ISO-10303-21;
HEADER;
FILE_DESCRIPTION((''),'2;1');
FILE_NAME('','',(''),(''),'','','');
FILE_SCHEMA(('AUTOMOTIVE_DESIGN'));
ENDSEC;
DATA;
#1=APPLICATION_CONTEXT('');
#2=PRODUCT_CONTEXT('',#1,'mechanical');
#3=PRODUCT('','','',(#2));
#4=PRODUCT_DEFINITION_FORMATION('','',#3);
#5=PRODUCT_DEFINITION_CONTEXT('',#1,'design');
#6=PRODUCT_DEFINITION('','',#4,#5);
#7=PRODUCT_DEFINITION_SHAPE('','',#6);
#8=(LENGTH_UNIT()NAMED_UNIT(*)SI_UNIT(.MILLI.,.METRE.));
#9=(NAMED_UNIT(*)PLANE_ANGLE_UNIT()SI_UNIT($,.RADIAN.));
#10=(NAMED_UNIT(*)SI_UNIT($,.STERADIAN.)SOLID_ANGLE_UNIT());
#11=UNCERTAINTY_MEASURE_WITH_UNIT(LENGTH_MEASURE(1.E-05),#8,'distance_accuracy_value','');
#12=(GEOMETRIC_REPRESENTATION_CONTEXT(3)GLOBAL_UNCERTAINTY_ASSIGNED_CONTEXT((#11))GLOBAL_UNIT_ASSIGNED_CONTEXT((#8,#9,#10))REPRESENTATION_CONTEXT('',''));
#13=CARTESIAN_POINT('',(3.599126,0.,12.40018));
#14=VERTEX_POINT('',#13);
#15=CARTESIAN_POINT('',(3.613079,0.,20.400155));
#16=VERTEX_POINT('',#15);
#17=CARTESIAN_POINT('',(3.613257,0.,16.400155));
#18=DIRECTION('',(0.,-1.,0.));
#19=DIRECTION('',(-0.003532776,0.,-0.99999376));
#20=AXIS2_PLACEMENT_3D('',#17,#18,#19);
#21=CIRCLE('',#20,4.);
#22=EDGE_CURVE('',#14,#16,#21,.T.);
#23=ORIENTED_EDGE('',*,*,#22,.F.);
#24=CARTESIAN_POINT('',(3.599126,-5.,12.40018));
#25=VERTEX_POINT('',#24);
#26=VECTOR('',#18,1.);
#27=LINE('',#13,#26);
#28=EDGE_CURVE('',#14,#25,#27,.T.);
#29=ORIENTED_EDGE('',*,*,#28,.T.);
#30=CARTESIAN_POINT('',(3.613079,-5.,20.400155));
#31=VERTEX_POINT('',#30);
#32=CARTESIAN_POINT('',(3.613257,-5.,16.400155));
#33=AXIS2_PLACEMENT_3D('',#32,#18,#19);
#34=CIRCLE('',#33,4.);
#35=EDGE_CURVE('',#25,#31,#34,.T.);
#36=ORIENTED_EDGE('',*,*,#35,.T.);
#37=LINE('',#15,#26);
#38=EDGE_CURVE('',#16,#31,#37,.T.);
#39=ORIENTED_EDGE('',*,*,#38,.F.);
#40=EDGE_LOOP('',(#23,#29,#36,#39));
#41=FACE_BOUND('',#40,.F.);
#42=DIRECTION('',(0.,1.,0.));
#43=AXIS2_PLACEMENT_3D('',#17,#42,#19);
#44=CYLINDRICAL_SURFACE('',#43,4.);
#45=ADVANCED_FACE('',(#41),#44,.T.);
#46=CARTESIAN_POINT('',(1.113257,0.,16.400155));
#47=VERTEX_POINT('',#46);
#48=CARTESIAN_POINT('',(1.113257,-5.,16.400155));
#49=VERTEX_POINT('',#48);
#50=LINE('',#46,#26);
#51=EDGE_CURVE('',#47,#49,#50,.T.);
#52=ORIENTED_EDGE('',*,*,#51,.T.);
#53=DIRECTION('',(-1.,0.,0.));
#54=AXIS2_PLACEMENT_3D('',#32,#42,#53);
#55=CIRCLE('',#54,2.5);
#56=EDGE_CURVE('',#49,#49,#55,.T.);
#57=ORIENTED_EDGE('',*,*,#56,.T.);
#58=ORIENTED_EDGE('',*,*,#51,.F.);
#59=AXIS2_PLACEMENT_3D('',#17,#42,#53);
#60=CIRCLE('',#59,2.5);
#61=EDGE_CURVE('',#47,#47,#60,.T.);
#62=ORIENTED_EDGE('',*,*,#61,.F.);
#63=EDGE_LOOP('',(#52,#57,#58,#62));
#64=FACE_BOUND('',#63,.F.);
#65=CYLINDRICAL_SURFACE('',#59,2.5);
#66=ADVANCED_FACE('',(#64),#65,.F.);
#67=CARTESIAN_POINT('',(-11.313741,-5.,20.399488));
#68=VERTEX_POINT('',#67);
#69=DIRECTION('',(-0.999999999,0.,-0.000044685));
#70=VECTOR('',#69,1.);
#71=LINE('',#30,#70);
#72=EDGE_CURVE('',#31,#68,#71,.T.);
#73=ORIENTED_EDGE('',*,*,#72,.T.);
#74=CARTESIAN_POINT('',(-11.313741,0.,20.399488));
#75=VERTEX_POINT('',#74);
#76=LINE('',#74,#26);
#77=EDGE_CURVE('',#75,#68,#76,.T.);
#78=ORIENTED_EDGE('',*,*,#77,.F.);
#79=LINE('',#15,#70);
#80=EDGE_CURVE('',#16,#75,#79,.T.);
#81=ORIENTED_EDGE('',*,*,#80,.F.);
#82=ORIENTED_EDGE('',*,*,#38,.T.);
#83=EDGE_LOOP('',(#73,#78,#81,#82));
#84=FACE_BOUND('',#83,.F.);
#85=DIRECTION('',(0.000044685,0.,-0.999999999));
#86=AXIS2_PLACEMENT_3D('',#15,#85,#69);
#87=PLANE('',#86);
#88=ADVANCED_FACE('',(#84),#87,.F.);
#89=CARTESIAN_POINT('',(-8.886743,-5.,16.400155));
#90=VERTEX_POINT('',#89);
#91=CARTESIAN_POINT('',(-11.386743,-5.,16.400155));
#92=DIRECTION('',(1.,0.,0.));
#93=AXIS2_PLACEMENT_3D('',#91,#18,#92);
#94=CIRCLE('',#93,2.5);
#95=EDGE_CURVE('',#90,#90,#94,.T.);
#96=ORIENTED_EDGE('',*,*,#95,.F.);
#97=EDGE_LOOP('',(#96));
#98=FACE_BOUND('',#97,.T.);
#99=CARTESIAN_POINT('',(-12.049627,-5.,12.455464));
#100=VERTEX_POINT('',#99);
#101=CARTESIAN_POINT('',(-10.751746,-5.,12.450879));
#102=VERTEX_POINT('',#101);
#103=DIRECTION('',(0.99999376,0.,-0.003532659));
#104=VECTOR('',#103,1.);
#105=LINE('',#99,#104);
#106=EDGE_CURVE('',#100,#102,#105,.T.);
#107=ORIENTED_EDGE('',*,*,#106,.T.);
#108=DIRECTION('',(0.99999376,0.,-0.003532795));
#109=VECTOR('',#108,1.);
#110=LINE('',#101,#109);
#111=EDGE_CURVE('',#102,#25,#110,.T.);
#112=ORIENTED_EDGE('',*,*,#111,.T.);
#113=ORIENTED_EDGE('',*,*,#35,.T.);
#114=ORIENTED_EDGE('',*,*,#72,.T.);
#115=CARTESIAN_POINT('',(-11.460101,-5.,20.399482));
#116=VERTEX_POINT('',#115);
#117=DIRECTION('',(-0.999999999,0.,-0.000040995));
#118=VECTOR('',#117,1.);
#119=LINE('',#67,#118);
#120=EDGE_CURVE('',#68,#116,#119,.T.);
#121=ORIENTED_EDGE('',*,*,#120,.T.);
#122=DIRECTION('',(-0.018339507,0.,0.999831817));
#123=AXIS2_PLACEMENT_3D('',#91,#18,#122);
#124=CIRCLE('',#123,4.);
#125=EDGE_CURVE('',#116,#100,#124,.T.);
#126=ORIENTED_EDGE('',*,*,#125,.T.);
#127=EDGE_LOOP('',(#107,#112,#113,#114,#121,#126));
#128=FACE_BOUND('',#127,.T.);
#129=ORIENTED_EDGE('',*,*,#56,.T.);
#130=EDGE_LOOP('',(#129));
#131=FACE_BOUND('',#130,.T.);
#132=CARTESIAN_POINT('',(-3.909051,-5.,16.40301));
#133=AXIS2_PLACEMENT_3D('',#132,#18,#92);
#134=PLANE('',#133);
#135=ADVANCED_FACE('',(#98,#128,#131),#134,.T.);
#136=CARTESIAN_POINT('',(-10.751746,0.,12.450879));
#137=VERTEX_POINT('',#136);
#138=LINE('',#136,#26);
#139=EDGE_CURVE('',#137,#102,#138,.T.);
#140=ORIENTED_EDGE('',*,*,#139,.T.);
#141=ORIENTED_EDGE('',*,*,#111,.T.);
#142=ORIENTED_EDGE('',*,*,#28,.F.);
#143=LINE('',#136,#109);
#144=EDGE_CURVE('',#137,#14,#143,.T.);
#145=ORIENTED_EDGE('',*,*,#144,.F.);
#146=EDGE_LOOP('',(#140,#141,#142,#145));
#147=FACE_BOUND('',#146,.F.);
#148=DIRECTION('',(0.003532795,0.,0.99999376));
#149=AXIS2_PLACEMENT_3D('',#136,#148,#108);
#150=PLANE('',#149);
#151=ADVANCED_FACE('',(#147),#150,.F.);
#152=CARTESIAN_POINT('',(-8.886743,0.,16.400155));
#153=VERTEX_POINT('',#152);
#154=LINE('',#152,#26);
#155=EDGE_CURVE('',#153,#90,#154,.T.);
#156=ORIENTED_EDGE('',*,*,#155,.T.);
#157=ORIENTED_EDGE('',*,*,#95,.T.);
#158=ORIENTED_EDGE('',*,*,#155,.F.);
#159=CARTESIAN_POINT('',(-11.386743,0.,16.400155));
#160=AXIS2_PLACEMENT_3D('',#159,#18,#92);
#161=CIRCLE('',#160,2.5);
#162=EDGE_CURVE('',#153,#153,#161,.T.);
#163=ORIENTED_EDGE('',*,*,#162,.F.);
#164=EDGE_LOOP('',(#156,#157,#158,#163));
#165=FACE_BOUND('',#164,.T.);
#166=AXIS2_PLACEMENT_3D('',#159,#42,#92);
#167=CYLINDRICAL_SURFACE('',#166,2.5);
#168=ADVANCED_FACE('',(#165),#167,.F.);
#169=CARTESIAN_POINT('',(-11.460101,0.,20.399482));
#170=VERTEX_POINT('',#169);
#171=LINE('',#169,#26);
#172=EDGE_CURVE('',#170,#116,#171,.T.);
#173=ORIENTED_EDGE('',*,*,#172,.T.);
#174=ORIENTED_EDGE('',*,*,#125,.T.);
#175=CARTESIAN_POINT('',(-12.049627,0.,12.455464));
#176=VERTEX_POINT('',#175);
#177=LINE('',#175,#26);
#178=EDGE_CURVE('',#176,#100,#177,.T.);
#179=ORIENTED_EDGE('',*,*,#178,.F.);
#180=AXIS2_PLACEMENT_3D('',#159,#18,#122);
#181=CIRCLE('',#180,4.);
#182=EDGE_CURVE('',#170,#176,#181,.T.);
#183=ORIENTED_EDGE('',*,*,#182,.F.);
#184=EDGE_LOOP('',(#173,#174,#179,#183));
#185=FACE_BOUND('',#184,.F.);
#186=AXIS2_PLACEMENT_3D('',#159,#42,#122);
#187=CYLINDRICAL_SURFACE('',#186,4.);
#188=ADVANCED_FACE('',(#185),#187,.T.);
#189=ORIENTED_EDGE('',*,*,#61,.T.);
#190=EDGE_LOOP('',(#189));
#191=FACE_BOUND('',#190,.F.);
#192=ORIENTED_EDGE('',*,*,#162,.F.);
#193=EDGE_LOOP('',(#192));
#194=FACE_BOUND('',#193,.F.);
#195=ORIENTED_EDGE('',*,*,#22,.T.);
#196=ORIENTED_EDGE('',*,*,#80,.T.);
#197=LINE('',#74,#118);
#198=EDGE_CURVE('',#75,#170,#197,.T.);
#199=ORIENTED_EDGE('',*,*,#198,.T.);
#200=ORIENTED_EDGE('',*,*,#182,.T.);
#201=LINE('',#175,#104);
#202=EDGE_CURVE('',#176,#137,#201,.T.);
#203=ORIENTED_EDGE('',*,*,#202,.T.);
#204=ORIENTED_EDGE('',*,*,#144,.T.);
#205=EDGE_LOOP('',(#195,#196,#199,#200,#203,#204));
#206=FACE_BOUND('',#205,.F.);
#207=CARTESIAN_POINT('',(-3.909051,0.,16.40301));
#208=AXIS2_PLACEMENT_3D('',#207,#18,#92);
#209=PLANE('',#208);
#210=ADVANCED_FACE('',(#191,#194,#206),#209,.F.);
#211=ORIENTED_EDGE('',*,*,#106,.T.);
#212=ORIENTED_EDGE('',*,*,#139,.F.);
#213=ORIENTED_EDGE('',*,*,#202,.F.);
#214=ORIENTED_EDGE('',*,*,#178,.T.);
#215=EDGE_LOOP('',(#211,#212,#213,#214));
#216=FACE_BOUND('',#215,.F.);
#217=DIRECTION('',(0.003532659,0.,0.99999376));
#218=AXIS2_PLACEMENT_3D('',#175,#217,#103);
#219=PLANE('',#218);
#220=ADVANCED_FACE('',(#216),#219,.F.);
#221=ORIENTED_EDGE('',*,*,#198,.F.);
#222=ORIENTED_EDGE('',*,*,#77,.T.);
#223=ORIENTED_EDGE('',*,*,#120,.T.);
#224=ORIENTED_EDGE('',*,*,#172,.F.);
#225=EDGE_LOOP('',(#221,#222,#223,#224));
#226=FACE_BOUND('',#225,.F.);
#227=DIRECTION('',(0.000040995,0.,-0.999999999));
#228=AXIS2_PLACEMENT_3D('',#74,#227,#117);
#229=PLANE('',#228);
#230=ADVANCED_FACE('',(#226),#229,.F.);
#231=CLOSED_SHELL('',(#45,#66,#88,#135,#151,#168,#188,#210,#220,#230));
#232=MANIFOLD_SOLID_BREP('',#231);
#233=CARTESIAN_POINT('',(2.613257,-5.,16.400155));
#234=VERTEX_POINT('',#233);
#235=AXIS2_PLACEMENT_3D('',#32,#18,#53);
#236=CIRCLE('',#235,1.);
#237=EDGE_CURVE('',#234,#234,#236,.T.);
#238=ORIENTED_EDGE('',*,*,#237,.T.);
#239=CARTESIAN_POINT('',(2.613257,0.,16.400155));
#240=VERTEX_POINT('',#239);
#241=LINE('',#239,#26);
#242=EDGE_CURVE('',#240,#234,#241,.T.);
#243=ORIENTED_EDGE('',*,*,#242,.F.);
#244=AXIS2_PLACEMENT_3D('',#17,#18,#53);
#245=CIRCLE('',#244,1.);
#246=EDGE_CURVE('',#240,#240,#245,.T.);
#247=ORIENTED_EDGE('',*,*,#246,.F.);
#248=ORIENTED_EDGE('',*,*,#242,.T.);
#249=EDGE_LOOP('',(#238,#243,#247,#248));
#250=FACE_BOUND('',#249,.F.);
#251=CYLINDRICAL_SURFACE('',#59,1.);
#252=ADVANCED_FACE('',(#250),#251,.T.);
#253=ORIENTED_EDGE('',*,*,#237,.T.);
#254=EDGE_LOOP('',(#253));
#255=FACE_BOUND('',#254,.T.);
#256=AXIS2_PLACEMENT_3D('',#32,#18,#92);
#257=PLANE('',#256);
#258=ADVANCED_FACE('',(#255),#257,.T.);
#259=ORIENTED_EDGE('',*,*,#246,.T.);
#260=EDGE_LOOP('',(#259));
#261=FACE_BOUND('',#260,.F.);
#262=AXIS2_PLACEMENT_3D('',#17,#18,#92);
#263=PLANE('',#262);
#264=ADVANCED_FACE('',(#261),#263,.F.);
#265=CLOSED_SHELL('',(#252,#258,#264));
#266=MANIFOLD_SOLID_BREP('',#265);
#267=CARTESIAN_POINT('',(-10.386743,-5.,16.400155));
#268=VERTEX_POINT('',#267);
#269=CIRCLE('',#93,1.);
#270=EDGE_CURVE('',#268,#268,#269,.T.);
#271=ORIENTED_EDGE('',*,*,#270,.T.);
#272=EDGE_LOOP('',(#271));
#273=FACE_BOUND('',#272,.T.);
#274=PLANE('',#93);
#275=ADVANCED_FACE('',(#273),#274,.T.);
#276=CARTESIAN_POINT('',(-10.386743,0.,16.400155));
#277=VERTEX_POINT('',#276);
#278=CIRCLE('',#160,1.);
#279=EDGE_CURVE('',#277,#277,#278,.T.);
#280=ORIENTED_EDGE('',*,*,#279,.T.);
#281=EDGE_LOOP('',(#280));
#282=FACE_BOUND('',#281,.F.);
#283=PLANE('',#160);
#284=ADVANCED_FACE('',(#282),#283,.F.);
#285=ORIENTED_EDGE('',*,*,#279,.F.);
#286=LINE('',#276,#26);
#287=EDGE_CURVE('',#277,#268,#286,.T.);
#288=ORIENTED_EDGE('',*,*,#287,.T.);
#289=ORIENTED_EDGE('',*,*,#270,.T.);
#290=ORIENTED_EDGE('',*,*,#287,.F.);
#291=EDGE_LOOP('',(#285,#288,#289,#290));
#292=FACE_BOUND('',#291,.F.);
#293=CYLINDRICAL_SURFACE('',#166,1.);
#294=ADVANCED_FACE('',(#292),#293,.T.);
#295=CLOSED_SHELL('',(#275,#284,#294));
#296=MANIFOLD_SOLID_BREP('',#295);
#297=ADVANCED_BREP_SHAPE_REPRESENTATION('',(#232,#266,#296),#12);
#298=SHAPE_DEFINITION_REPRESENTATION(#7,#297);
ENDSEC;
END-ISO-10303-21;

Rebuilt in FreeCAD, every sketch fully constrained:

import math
import FreeCAD as App
import Part
import Sketcher
Q = App.Units.Quantity

doc = App.newDocument("Part")
params = doc.addObject("Spreadsheet::Sheet", "Params")
for row, (alias, value) in enumerate([
    ("sketch1_diameter", "5 mm"),
    ("sketch1_radius", "4 mm"),
    ("pad1_length", "5 mm"),
    ("sketch2_diameter", "2 mm"),
    ("pad2_length", "5 mm"),
], start=1):
    params.set(f"A{row}", alias)
    params.set(f"B{row}", "=" + value)
    params.setAlias(f"B{row}", alias)

body = doc.addObject("PartDesign::Body", "Body")

sketch1 = doc.addObject("Sketcher::SketchObject", "Sketch")
body.addObject(sketch1)
sketch1.AttachmentSupport = (doc.XZ_Plane, [""])
sketch1.MapMode = "FlatFace"
sketch1.addGeometry(Part.LineSegment(App.Vector(3.61, 20.4, 0), App.Vector(-11.31, 20.4, 0)), False)
sketch1.addGeometry(Part.LineSegment(App.Vector(-11.31, 20.4, 0), App.Vector(-11.46, 20.4, 0)), False)
sketch1.addGeometry(Part.ArcOfCircle(Part.Circle(App.Vector(-11.39, 16.4, 0), App.Vector(0, 0, 1), 4), math.radians(91), math.radians(260)), False)
sketch1.addGeometry(Part.LineSegment(App.Vector(-12.05, 12.46, 0), App.Vector(-10.75, 12.45, 0)), False)
sketch1.addGeometry(Part.LineSegment(App.Vector(-10.75, 12.45, 0), App.Vector(3.6, 12.4, 0)), False)
sketch1.addGeometry(Part.ArcOfCircle(Part.Circle(App.Vector(3.61, 16.4, 0), App.Vector(0, 0, 1), 4), math.radians(-90), math.radians(90)), False)
sketch1.addGeometry(Part.Circle(App.Vector(-11.39, 16.4, 0), App.Vector(0, 0, 1), 2.5), False)
sketch1.addGeometry(Part.Circle(App.Vector(3.61, 16.4, 0), App.Vector(0, 0, 1), 2.5), False)
sketch1.addConstraint(Sketcher.Constraint("Coincident", 0, 2, 1, 1))
sketch1.addConstraint(Sketcher.Constraint("Coincident", 1, 2, 2, 1))
sketch1.addConstraint(Sketcher.Constraint("Coincident", 2, 2, 3, 1))
sketch1.addConstraint(Sketcher.Constraint("Coincident", 3, 2, 4, 1))
sketch1.addConstraint(Sketcher.Constraint("Tangent", 4, 2, 5, 1))
sketch1.addConstraint(Sketcher.Constraint("Tangent", 5, 2, 0, 1))
sketch1.addConstraint(Sketcher.Constraint("Coincident", 6, 3, 2, 3))
sketch1.addConstraint(Sketcher.Constraint("Coincident", 7, 3, 5, 3))
sketch1.addConstraint(Sketcher.Constraint("Equal", 2, 5))
sketch1.addConstraint(Sketcher.Constraint("Equal", 6, 7))
sketch1.addConstraint(Sketcher.Constraint("Parallel", 3, 4))
sketch1.addConstraint(Sketcher.Constraint("Horizontal", 2, 3, 5, 3))
sketch1.addConstraint(Sketcher.Constraint("Diameter", 6, Q("5 mm")))
sketch1.addConstraint(Sketcher.Constraint("Radius", 2, Q("4 mm")))
sketch1.addConstraint(Sketcher.Constraint("DistanceX", 2, 3, 5, 3, Q("15 mm")))
sketch1.addConstraint(Sketcher.Constraint("DistanceX", 6, 3, 0, 2, Q("0.073002 mm")))
sketch1.addConstraint(Sketcher.Constraint("DistanceX", 1, 2, -1, 1, Q("11.460101 mm")))
sketch1.addConstraint(Sketcher.Constraint("DistanceY", 4, 2, 3, 2, Q("0.050699 mm")))
sketch1.addConstraint(Sketcher.Constraint("Distance", 0, Q("14.92682 mm")))
sketch1.addConstraint(Sketcher.Constraint("Distance", 1, Q("0.14636 mm")))
sketch1.addConstraint(Sketcher.Constraint("Distance", 3, Q("1.297889 mm")))
sketch1.addConstraint(Sketcher.Constraint("DistanceY", -1, 1, 0, 2, Q("20.399488 mm")))
sketch1.setExpression("Constraints[12]", "Params.sketch1_diameter")
sketch1.setExpression("Constraints[13]", "Params.sketch1_radius")
pad1 = doc.addObject("PartDesign::Pad", "Pad")
body.addObject(pad1)
pad1.Profile = sketch1
pad1.setExpression("Length", "Params.pad1_length")
body2 = doc.addObject("PartDesign::Body", "Body001")
body2.AllowCompound = True

sketch2 = doc.addObject("Sketcher::SketchObject", "Sketch001")
body2.addObject(sketch2)
sketch2.AttachmentSupport = (doc.getObject("XZ_Plane001"), [""])
sketch2.MapMode = "FlatFace"
sketch2.addGeometry(Part.Circle(App.Vector(-11.4, 16.4, 0), App.Vector(0, 0, 1), 1), False)
sketch2.addGeometry(Part.Circle(App.Vector(3.6, 16.4, 0), App.Vector(0, 0, 1), 1), False)
sketch2.addConstraint(Sketcher.Constraint("Equal", 0, 1))
sketch2.addConstraint(Sketcher.Constraint("Horizontal", 0, 3, 1, 3))
sketch2.addConstraint(Sketcher.Constraint("Diameter", 0, Q("2 mm")))
sketch2.addConstraint(Sketcher.Constraint("DistanceX", 0, 3, 1, 3, Q("15 mm")))
sketch2.addConstraint(Sketcher.Constraint("DistanceX", 0, 3, -1, 1, Q("11.386743 mm")))
sketch2.addConstraint(Sketcher.Constraint("DistanceY", -1, 1, 0, 3, Q("16.400155 mm")))
sketch2.setExpression("Constraints[2]", "Params.sketch2_diameter")
pad2 = doc.addObject("PartDesign::Pad", "Pad001")
body2.addObject(pad2)
pad2.Profile = sketch2
pad2.setExpression("Length", "Params.pad2_length")

doc.recompute()
